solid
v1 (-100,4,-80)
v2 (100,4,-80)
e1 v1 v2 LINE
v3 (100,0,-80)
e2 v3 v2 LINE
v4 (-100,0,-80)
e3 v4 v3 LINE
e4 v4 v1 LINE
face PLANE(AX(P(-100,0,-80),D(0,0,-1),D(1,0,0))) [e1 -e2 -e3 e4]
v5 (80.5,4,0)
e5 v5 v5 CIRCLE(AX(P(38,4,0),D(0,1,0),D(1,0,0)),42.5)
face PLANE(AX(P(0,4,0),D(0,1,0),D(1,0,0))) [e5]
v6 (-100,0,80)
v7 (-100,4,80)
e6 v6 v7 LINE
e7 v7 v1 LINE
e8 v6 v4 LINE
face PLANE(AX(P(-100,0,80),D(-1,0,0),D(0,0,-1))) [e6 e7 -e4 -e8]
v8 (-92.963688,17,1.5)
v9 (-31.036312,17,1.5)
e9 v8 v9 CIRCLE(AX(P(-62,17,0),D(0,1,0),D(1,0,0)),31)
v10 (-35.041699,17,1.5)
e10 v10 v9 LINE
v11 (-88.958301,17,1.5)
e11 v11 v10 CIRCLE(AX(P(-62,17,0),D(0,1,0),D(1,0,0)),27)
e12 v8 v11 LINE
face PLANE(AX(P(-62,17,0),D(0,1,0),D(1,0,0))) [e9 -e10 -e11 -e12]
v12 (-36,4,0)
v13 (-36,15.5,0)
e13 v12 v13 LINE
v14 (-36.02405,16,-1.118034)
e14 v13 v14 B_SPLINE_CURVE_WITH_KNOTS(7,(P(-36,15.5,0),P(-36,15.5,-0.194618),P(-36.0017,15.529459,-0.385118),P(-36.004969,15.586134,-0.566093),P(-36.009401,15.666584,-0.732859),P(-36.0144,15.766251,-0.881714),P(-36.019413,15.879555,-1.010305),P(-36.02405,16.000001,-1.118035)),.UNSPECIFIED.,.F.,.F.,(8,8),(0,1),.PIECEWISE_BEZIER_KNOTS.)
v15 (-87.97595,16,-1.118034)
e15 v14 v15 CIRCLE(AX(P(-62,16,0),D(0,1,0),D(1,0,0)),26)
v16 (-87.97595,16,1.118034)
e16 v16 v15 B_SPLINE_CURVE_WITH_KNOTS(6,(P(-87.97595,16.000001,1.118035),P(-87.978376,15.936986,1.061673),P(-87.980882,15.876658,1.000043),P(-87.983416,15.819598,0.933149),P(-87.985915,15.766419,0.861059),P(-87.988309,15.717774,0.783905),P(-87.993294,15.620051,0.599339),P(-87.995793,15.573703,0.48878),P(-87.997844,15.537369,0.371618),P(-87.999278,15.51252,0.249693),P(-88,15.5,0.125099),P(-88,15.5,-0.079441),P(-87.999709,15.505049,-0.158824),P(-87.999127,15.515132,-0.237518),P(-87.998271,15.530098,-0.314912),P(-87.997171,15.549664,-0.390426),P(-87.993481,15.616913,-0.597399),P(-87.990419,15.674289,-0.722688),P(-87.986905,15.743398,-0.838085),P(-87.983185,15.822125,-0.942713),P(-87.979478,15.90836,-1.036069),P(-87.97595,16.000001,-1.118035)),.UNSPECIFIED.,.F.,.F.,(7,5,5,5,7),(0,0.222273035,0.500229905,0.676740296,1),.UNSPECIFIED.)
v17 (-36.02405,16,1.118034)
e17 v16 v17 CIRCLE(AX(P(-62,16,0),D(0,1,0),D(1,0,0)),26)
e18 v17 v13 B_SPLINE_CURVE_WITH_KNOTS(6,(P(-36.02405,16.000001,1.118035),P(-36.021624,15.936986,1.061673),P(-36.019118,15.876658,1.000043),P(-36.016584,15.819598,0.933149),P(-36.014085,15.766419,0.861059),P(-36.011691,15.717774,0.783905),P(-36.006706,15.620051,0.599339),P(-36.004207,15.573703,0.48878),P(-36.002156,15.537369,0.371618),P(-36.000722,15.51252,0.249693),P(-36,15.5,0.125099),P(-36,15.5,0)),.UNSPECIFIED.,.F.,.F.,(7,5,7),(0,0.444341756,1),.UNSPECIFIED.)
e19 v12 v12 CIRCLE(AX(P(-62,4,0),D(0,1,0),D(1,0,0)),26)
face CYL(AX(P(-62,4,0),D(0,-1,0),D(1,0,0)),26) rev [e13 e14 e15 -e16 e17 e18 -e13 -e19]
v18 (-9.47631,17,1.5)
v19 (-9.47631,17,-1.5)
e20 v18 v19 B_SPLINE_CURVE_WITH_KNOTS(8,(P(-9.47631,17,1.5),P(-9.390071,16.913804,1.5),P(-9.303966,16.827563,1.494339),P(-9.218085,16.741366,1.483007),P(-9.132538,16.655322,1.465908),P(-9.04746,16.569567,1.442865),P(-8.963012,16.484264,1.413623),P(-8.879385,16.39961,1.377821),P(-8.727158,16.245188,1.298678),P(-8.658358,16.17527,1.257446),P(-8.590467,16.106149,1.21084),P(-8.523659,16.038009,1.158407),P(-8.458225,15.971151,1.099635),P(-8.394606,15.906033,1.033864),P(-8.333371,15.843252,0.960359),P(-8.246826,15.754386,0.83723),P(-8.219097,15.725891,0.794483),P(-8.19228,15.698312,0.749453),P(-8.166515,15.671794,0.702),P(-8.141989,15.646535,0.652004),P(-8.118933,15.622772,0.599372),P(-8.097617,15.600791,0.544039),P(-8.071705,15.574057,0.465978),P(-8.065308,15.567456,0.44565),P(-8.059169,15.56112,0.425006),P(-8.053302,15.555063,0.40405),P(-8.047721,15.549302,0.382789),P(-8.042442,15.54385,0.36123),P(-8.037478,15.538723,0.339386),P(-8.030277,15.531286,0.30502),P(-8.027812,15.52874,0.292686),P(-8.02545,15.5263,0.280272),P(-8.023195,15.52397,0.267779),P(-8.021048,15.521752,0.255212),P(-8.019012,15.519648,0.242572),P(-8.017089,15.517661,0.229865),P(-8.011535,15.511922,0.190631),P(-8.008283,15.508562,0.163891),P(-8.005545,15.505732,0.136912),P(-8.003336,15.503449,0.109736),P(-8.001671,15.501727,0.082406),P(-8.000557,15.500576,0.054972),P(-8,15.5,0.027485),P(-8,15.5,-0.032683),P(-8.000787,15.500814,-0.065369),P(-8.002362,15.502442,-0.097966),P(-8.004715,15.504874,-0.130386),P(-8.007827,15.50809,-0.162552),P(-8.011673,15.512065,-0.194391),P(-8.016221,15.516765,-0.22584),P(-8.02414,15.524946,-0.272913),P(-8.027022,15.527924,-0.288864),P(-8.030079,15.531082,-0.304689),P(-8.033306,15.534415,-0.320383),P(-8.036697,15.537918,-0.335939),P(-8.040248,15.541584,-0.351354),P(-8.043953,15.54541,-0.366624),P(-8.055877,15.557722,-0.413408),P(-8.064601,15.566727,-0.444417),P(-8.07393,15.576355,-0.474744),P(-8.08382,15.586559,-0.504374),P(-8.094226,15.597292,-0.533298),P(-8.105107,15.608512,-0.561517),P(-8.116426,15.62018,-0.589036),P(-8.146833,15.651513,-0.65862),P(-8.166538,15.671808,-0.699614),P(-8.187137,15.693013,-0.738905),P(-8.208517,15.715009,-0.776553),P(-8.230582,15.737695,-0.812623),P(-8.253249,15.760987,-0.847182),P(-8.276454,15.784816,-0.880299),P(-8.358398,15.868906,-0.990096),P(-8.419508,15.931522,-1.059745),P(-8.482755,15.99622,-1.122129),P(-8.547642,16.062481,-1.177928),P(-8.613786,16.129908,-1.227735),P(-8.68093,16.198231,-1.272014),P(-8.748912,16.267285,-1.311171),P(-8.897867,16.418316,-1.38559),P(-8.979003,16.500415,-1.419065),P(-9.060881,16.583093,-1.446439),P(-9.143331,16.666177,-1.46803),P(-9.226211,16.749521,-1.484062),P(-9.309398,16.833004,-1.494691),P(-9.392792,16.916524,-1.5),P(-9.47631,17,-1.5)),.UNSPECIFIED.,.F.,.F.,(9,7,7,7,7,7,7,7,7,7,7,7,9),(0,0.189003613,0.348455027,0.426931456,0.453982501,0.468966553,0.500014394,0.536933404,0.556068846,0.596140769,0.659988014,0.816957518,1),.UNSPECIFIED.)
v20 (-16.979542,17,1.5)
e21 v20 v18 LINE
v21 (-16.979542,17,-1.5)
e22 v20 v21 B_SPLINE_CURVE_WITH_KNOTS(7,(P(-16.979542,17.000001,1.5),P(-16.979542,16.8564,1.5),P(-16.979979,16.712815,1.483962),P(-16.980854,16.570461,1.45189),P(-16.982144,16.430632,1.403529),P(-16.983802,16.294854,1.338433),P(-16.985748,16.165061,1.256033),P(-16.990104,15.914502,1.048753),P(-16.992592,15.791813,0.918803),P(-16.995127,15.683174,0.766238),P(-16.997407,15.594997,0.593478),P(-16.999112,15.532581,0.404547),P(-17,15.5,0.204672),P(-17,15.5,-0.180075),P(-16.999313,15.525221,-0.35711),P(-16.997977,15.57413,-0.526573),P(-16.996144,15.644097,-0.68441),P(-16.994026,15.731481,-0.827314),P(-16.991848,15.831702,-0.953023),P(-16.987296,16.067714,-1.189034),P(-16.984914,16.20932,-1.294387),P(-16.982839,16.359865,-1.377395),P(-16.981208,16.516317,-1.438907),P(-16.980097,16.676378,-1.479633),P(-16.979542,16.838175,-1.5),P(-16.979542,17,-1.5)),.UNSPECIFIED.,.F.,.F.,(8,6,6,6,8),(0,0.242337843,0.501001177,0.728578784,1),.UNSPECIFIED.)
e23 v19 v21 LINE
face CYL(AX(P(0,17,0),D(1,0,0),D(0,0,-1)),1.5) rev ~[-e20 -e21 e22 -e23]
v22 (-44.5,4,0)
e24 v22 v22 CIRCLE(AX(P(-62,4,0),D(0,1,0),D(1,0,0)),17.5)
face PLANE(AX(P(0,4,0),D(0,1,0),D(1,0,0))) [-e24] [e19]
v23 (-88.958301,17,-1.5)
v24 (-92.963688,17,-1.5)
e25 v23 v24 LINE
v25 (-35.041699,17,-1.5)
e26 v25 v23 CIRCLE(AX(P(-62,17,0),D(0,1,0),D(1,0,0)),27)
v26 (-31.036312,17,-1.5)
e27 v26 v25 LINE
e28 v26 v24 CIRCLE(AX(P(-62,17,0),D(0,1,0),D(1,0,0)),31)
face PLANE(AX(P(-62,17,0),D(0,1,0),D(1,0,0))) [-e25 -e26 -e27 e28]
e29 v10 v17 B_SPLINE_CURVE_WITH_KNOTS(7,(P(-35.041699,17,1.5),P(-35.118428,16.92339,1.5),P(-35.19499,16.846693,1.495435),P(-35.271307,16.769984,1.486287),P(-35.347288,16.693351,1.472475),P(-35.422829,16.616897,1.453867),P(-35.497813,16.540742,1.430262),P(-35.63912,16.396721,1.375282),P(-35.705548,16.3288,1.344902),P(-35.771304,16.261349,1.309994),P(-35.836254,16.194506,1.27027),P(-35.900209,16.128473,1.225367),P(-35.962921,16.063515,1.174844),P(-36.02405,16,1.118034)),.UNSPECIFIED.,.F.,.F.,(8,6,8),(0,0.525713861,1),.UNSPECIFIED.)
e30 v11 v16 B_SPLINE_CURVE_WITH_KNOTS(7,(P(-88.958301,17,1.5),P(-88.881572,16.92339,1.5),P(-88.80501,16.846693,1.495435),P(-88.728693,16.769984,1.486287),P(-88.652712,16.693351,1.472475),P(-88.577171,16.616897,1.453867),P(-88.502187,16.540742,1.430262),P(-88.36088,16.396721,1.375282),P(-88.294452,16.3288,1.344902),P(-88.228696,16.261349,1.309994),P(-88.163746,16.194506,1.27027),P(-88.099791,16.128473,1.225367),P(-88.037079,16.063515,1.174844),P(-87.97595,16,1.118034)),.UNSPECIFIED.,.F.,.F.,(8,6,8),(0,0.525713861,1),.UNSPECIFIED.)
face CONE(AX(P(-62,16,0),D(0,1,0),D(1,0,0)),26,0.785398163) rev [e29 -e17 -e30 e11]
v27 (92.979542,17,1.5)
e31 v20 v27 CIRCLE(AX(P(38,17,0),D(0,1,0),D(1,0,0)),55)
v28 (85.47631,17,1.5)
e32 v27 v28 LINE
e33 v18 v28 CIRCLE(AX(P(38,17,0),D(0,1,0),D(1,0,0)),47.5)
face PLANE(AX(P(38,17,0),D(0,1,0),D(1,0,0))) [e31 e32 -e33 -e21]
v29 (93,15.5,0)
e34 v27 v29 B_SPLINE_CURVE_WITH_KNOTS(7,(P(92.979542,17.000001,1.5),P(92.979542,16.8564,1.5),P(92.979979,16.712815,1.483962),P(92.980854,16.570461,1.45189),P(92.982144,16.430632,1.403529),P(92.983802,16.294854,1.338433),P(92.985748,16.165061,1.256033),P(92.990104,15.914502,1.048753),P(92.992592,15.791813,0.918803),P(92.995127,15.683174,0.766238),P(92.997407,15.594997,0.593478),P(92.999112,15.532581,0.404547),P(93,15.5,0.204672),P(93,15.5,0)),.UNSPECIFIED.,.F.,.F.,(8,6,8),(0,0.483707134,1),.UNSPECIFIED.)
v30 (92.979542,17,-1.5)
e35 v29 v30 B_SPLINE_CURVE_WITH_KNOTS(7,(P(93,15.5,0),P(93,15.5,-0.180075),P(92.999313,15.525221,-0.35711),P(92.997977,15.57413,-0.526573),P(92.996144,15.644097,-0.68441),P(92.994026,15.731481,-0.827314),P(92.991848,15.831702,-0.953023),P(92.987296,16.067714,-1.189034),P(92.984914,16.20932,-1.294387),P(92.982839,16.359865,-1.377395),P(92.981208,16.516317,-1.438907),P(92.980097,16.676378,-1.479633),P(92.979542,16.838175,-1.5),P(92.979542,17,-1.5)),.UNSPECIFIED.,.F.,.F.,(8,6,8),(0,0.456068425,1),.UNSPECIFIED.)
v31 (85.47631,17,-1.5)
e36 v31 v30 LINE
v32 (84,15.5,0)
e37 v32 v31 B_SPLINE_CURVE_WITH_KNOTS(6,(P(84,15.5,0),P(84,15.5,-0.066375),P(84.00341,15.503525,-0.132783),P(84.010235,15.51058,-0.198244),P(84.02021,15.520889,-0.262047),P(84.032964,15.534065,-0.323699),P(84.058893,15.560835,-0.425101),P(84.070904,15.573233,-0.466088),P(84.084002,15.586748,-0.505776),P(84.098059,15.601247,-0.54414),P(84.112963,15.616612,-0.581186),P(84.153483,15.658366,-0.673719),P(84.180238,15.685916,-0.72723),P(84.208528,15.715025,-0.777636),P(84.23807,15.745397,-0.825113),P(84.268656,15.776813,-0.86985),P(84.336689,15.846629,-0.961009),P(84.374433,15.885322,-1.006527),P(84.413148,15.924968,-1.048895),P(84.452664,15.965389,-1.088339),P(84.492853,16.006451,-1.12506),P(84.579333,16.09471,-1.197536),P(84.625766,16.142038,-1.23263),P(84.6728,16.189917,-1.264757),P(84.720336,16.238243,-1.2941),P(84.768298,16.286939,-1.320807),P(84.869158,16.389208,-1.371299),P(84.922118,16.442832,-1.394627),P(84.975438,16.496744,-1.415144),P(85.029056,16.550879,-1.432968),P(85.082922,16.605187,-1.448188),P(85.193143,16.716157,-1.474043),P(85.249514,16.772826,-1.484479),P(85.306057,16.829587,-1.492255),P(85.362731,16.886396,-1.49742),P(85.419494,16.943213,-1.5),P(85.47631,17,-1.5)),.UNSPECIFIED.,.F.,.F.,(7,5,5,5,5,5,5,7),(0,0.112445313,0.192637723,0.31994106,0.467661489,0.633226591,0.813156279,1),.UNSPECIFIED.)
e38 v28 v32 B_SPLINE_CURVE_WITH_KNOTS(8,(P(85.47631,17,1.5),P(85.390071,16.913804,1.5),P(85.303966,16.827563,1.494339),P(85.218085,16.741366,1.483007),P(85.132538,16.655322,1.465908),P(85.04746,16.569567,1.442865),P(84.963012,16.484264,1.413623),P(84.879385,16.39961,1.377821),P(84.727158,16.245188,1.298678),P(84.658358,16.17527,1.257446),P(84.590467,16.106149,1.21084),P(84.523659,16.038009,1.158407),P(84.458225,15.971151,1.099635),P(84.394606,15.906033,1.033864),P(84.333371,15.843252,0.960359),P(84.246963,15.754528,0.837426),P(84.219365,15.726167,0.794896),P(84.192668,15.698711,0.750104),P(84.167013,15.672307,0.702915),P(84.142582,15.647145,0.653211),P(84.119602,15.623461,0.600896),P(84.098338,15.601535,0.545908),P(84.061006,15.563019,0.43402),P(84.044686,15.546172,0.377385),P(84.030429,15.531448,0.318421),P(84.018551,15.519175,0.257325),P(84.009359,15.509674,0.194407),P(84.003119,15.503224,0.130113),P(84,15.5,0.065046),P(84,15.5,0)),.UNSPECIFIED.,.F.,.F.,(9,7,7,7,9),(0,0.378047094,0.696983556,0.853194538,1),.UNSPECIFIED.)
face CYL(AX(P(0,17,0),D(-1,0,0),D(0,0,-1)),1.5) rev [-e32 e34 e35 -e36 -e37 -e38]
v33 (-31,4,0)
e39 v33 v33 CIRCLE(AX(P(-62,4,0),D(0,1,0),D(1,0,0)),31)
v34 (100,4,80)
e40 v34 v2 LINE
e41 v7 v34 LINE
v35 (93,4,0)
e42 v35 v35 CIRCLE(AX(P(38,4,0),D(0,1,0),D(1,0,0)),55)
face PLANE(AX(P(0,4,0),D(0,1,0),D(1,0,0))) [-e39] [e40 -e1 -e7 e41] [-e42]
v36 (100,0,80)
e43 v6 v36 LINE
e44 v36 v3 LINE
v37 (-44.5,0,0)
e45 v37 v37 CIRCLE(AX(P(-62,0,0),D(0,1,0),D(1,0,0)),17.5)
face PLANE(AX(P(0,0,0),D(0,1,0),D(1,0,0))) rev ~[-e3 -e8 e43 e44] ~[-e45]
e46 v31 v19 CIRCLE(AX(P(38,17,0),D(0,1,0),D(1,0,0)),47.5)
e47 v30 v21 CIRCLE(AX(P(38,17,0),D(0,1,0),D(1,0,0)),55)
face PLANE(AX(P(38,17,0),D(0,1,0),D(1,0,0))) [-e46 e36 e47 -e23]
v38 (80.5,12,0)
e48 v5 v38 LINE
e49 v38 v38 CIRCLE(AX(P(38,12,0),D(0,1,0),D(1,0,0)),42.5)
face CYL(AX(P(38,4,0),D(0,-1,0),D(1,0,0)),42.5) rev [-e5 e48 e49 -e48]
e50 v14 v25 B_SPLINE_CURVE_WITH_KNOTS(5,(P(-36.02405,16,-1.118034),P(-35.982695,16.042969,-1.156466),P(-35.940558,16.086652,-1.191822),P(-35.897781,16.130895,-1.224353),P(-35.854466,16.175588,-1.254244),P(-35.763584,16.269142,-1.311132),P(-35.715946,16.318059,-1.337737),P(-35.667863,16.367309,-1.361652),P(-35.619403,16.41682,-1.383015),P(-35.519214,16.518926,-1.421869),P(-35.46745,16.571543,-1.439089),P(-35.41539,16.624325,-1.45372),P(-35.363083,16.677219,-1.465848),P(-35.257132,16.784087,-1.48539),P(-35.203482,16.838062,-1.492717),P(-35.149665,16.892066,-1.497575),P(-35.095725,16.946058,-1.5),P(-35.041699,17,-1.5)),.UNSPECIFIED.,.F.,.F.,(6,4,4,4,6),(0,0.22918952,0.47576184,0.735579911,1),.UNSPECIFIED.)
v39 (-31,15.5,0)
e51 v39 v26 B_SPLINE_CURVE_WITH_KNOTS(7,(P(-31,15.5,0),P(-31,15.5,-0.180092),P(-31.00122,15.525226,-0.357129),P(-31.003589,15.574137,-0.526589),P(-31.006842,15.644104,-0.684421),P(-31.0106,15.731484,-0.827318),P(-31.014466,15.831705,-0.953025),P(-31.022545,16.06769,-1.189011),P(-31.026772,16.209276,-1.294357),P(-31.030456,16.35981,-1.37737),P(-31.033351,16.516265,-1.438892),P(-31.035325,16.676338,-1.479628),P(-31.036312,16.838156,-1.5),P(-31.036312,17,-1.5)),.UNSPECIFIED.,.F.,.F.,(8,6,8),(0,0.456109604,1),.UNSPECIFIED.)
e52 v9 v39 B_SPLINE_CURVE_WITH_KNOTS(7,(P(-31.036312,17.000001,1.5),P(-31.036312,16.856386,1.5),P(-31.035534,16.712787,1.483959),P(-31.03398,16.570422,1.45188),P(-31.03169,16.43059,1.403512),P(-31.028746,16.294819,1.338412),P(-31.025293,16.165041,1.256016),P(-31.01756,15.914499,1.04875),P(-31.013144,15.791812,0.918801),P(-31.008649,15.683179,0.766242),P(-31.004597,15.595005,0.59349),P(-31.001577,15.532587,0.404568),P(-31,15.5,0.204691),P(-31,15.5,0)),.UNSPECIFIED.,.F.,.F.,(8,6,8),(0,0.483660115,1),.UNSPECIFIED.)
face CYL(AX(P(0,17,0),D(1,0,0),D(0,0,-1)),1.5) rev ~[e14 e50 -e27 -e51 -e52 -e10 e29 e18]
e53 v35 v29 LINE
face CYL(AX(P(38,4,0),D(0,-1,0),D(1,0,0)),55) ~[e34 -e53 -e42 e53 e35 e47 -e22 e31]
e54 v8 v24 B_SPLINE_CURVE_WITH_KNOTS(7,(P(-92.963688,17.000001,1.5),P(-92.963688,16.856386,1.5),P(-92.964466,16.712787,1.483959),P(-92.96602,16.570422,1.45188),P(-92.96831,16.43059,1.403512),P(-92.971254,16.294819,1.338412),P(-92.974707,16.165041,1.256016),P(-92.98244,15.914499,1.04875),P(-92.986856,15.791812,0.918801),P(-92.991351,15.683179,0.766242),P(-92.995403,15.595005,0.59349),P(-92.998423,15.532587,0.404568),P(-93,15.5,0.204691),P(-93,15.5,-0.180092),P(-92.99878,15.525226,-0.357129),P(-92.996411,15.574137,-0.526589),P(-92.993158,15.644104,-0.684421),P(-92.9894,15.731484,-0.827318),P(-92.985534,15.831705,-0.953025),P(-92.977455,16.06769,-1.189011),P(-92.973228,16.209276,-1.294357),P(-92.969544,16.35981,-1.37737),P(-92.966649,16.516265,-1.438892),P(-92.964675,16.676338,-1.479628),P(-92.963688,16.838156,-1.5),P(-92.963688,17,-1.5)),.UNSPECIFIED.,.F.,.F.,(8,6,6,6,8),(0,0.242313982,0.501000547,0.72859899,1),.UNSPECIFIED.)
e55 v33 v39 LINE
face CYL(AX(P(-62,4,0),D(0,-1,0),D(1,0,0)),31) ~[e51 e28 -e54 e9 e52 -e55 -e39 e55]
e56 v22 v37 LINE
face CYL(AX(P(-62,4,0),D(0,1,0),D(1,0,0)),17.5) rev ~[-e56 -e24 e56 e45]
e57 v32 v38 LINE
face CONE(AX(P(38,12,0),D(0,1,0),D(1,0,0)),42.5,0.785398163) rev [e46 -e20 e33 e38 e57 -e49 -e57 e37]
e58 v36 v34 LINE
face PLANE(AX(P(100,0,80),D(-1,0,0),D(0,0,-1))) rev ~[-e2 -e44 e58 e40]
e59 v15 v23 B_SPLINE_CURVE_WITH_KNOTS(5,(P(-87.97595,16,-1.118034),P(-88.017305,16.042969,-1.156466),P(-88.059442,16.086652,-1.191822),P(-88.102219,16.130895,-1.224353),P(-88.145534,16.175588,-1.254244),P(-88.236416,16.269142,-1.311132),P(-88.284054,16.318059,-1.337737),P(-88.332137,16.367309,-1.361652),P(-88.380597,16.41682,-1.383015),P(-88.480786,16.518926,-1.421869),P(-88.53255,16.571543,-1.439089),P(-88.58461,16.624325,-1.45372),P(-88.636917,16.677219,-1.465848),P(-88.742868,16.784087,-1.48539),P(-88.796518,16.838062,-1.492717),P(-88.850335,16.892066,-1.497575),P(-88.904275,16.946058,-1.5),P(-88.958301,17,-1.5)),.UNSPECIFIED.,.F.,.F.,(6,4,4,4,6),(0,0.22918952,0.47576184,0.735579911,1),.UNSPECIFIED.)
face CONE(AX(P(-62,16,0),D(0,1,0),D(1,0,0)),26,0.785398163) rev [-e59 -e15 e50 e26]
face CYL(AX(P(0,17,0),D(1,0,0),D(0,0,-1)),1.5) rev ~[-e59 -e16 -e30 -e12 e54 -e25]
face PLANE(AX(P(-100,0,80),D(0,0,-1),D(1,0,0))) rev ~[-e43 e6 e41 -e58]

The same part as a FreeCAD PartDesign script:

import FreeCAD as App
import Part
import Sketcher
from FreeCAD import Vector


def edges_at(feature, points):
    """Names of the edges that pass closest to the given points."""
    edges = feature.Shape.Edges
    near = lambda p: min(range(len(edges)), key=lambda i: edges[i].distToShape(Part.Vertex(*p))[0])
    return sorted({f"Edge{near(p) + 1}" for p in points})

doc = App.newDocument("Part")
params = doc.addObject("Spreadsheet::Sheet", "Params")
for row, (alias, value) in enumerate([
    ("sketch1_width", "200 mm"),
    ("sketch1_height", "160 mm"),
    ("pad1_length", "4 mm"),
    ("sketch2_diameter", "62 mm"),
    ("sketch2_diameter2", "52 mm"),
    ("sketch2_diameter3", "110 mm"),
    ("sketch2_diameter4", "85 mm"),
    ("pad2_length", "13 mm"),
    ("chamfer_size", "5 mm"),
    ("chamfer2_size", "1 mm"),
    ("sketch3_diameter", "35 mm"),
    ("sketch4_diameter", "3 mm"),
], start=1):
    params.set(f"A{row}", alias)
    params.set(f"B{row}", "=" + value)
    params.setAlias(f"B{row}", alias)

body = doc.addObject("PartDesign::Body", "Body")

# Sketch on XZ plane
sketch1 = body.newObject("Sketcher::SketchObject", "Sketch")
sketch1.AttachmentSupport = (doc.getObject("XZ_Plane"), [""])
sketch1.MapMode = "FlatFace"
sketch1.addGeometry([
    Part.LineSegment(Vector(-100, -80, 0), Vector(-100, 80, 0)),
    Part.LineSegment(Vector(-100, 80, 0), Vector(100, 80, 0)),
    Part.LineSegment(Vector(100, 80, 0), Vector(100, -80, 0)),
    Part.LineSegment(Vector(100, -80, 0), Vector(-100, -80, 0)),
], False)
sketch1.addConstraint([
    Sketcher.Constraint("Coincident", 0, 2, 1, 1),
    Sketcher.Constraint("Coincident", 1, 2, 2, 1),
    Sketcher.Constraint("Coincident", 2, 2, 3, 1),
    Sketcher.Constraint("Coincident", 3, 2, 0, 1),
    Sketcher.Constraint("Vertical", 0),
    Sketcher.Constraint("Horizontal", 1),
    Sketcher.Constraint("Vertical", 2),
    Sketcher.Constraint("Horizontal", 3),
    Sketcher.Constraint("Symmetric", 0, 2, 2, 2, -1, 1),
    Sketcher.Constraint("DistanceX", 1, 1, 1, 2, 200.0),
    Sketcher.Constraint("DistanceY", 0, 1, 0, 2, 160.0),
])
sketch1.setExpression("Constraints[9]", "Params.sketch1_width")
sketch1.setExpression("Constraints[10]", "Params.sketch1_height")
pad1 = body.newObject("PartDesign::Pad", "Pad")
pad1.Profile = sketch1
pad1.setExpression("Length", "Params.pad1_length")
pad1.Reversed = True

# Sketch on XZ plane
sketch2 = body.newObject("Sketcher::SketchObject", "Sketch001")
sketch2.AttachmentSupport = (doc.getObject("XZ_Plane"), [""])
sketch2.MapMode = "FlatFace"
sketch2.AttachmentOffset = App.Placement(Vector(0, 0, -4), App.Rotation())
sketch2.addGeometry([
    Part.Circle(Vector(-62, 0, 0), Vector(0, 0, 1), 31),
    Part.Circle(Vector(-62, 0, 0), Vector(0, 0, 1), 26),
    Part.Circle(Vector(38, 0, 0), Vector(0, 0, 1), 55),
    Part.Circle(Vector(38, 0, 0), Vector(0, 0, 1), 42.5),
], False)
sketch2.addConstraint([
    Sketcher.Constraint("Coincident", 1, 3, 0, 3),
    Sketcher.Constraint("Coincident", 3, 3, 2, 3),
    Sketcher.Constraint("PointOnObject", 0, 3, -1),
    Sketcher.Constraint("PointOnObject", 2, 3, -1),
    Sketcher.Constraint("Diameter", 0, 62.0),
    Sketcher.Constraint("Diameter", 1, 52.0),
    Sketcher.Constraint("Diameter", 2, 110.0),
    Sketcher.Constraint("Diameter", 3, 85.0),
    Sketcher.Constraint("DistanceX", 0, 3, -1, 1, 62.0),
    Sketcher.Constraint("DistanceX", -1, 1, 2, 3, 38.0),
])
sketch2.setExpression("Constraints[4]", "Params.sketch2_diameter")
sketch2.setExpression("Constraints[5]", "Params.sketch2_diameter2")
sketch2.setExpression("Constraints[6]", "Params.sketch2_diameter3")
sketch2.setExpression("Constraints[7]", "Params.sketch2_diameter4")
pad2 = body.newObject("PartDesign::Pad", "Pad001")
pad2.Profile = sketch2
pad2.setExpression("Length", "Params.pad2_length")
pad2.Reversed = True
doc.recompute()

chamfer = body.newObject("PartDesign::Chamfer", "Chamfer")
chamfer.Base = (pad2, edges_at(pad2, [(-4.5, 17, 0)]))
chamfer.setExpression("Size", "Params.chamfer_size")
doc.recompute()

chamfer2 = body.newObject("PartDesign::Chamfer", "Chamfer001")
chamfer2.Base = (chamfer, edges_at(chamfer, [(-88, 17, 0)]))
chamfer2.setExpression("Size", "Params.chamfer2_size")

# Sketch on XZ plane
sketch3 = body.newObject("Sketcher::SketchObject", "Sketch002")
sketch3.AttachmentSupport = (doc.getObject("XZ_Plane"), [""])
sketch3.MapMode = "FlatFace"
sketch3.AttachmentOffset = App.Placement(Vector(0, 0, -4), App.Rotation())
sketch3.addGeometry(Part.Circle(Vector(-62, 0, 0), Vector(0, 0, 1), 17.5), False)
sketch3.addConstraint([
    Sketcher.Constraint("PointOnObject", 0, 3, -1),
    Sketcher.Constraint("Diameter", 0, 35.0),
    Sketcher.Constraint("DistanceX", 0, 3, -1, 1, 62.0),
])
sketch3.setExpression("Constraints[1]", "Params.sketch3_diameter")
pocket1 = body.newObject("PartDesign::Pocket", "Pocket")
pocket1.Profile = sketch3
pocket1.Type = "ThroughAll"
pocket1.Reversed = True

# Sketch on YZ plane
sketch4 = body.newObject("Sketcher::SketchObject", "Sketch003")
sketch4.AttachmentSupport = (doc.getObject("YZ_Plane"), [""])
sketch4.MapMode = "FlatFace"
sketch4.addGeometry(Part.Circle(Vector(17, 0, 0), Vector(0, 0, 1), 1.5), False)
sketch4.addConstraint([
    Sketcher.Constraint("PointOnObject", 0, 3, -1),
    Sketcher.Constraint("Diameter", 0, 3.0),
    Sketcher.Constraint("DistanceX", -1, 1, 0, 3, 17.0),
])
sketch4.setExpression("Constraints[1]", "Params.sketch4_diameter")
pocket2 = body.newObject("PartDesign::Pocket", "Pocket001")
pocket2.Profile = sketch4
pocket2.Type = "ThroughAll"
pocket2.Midplane = True

doc.recompute()
